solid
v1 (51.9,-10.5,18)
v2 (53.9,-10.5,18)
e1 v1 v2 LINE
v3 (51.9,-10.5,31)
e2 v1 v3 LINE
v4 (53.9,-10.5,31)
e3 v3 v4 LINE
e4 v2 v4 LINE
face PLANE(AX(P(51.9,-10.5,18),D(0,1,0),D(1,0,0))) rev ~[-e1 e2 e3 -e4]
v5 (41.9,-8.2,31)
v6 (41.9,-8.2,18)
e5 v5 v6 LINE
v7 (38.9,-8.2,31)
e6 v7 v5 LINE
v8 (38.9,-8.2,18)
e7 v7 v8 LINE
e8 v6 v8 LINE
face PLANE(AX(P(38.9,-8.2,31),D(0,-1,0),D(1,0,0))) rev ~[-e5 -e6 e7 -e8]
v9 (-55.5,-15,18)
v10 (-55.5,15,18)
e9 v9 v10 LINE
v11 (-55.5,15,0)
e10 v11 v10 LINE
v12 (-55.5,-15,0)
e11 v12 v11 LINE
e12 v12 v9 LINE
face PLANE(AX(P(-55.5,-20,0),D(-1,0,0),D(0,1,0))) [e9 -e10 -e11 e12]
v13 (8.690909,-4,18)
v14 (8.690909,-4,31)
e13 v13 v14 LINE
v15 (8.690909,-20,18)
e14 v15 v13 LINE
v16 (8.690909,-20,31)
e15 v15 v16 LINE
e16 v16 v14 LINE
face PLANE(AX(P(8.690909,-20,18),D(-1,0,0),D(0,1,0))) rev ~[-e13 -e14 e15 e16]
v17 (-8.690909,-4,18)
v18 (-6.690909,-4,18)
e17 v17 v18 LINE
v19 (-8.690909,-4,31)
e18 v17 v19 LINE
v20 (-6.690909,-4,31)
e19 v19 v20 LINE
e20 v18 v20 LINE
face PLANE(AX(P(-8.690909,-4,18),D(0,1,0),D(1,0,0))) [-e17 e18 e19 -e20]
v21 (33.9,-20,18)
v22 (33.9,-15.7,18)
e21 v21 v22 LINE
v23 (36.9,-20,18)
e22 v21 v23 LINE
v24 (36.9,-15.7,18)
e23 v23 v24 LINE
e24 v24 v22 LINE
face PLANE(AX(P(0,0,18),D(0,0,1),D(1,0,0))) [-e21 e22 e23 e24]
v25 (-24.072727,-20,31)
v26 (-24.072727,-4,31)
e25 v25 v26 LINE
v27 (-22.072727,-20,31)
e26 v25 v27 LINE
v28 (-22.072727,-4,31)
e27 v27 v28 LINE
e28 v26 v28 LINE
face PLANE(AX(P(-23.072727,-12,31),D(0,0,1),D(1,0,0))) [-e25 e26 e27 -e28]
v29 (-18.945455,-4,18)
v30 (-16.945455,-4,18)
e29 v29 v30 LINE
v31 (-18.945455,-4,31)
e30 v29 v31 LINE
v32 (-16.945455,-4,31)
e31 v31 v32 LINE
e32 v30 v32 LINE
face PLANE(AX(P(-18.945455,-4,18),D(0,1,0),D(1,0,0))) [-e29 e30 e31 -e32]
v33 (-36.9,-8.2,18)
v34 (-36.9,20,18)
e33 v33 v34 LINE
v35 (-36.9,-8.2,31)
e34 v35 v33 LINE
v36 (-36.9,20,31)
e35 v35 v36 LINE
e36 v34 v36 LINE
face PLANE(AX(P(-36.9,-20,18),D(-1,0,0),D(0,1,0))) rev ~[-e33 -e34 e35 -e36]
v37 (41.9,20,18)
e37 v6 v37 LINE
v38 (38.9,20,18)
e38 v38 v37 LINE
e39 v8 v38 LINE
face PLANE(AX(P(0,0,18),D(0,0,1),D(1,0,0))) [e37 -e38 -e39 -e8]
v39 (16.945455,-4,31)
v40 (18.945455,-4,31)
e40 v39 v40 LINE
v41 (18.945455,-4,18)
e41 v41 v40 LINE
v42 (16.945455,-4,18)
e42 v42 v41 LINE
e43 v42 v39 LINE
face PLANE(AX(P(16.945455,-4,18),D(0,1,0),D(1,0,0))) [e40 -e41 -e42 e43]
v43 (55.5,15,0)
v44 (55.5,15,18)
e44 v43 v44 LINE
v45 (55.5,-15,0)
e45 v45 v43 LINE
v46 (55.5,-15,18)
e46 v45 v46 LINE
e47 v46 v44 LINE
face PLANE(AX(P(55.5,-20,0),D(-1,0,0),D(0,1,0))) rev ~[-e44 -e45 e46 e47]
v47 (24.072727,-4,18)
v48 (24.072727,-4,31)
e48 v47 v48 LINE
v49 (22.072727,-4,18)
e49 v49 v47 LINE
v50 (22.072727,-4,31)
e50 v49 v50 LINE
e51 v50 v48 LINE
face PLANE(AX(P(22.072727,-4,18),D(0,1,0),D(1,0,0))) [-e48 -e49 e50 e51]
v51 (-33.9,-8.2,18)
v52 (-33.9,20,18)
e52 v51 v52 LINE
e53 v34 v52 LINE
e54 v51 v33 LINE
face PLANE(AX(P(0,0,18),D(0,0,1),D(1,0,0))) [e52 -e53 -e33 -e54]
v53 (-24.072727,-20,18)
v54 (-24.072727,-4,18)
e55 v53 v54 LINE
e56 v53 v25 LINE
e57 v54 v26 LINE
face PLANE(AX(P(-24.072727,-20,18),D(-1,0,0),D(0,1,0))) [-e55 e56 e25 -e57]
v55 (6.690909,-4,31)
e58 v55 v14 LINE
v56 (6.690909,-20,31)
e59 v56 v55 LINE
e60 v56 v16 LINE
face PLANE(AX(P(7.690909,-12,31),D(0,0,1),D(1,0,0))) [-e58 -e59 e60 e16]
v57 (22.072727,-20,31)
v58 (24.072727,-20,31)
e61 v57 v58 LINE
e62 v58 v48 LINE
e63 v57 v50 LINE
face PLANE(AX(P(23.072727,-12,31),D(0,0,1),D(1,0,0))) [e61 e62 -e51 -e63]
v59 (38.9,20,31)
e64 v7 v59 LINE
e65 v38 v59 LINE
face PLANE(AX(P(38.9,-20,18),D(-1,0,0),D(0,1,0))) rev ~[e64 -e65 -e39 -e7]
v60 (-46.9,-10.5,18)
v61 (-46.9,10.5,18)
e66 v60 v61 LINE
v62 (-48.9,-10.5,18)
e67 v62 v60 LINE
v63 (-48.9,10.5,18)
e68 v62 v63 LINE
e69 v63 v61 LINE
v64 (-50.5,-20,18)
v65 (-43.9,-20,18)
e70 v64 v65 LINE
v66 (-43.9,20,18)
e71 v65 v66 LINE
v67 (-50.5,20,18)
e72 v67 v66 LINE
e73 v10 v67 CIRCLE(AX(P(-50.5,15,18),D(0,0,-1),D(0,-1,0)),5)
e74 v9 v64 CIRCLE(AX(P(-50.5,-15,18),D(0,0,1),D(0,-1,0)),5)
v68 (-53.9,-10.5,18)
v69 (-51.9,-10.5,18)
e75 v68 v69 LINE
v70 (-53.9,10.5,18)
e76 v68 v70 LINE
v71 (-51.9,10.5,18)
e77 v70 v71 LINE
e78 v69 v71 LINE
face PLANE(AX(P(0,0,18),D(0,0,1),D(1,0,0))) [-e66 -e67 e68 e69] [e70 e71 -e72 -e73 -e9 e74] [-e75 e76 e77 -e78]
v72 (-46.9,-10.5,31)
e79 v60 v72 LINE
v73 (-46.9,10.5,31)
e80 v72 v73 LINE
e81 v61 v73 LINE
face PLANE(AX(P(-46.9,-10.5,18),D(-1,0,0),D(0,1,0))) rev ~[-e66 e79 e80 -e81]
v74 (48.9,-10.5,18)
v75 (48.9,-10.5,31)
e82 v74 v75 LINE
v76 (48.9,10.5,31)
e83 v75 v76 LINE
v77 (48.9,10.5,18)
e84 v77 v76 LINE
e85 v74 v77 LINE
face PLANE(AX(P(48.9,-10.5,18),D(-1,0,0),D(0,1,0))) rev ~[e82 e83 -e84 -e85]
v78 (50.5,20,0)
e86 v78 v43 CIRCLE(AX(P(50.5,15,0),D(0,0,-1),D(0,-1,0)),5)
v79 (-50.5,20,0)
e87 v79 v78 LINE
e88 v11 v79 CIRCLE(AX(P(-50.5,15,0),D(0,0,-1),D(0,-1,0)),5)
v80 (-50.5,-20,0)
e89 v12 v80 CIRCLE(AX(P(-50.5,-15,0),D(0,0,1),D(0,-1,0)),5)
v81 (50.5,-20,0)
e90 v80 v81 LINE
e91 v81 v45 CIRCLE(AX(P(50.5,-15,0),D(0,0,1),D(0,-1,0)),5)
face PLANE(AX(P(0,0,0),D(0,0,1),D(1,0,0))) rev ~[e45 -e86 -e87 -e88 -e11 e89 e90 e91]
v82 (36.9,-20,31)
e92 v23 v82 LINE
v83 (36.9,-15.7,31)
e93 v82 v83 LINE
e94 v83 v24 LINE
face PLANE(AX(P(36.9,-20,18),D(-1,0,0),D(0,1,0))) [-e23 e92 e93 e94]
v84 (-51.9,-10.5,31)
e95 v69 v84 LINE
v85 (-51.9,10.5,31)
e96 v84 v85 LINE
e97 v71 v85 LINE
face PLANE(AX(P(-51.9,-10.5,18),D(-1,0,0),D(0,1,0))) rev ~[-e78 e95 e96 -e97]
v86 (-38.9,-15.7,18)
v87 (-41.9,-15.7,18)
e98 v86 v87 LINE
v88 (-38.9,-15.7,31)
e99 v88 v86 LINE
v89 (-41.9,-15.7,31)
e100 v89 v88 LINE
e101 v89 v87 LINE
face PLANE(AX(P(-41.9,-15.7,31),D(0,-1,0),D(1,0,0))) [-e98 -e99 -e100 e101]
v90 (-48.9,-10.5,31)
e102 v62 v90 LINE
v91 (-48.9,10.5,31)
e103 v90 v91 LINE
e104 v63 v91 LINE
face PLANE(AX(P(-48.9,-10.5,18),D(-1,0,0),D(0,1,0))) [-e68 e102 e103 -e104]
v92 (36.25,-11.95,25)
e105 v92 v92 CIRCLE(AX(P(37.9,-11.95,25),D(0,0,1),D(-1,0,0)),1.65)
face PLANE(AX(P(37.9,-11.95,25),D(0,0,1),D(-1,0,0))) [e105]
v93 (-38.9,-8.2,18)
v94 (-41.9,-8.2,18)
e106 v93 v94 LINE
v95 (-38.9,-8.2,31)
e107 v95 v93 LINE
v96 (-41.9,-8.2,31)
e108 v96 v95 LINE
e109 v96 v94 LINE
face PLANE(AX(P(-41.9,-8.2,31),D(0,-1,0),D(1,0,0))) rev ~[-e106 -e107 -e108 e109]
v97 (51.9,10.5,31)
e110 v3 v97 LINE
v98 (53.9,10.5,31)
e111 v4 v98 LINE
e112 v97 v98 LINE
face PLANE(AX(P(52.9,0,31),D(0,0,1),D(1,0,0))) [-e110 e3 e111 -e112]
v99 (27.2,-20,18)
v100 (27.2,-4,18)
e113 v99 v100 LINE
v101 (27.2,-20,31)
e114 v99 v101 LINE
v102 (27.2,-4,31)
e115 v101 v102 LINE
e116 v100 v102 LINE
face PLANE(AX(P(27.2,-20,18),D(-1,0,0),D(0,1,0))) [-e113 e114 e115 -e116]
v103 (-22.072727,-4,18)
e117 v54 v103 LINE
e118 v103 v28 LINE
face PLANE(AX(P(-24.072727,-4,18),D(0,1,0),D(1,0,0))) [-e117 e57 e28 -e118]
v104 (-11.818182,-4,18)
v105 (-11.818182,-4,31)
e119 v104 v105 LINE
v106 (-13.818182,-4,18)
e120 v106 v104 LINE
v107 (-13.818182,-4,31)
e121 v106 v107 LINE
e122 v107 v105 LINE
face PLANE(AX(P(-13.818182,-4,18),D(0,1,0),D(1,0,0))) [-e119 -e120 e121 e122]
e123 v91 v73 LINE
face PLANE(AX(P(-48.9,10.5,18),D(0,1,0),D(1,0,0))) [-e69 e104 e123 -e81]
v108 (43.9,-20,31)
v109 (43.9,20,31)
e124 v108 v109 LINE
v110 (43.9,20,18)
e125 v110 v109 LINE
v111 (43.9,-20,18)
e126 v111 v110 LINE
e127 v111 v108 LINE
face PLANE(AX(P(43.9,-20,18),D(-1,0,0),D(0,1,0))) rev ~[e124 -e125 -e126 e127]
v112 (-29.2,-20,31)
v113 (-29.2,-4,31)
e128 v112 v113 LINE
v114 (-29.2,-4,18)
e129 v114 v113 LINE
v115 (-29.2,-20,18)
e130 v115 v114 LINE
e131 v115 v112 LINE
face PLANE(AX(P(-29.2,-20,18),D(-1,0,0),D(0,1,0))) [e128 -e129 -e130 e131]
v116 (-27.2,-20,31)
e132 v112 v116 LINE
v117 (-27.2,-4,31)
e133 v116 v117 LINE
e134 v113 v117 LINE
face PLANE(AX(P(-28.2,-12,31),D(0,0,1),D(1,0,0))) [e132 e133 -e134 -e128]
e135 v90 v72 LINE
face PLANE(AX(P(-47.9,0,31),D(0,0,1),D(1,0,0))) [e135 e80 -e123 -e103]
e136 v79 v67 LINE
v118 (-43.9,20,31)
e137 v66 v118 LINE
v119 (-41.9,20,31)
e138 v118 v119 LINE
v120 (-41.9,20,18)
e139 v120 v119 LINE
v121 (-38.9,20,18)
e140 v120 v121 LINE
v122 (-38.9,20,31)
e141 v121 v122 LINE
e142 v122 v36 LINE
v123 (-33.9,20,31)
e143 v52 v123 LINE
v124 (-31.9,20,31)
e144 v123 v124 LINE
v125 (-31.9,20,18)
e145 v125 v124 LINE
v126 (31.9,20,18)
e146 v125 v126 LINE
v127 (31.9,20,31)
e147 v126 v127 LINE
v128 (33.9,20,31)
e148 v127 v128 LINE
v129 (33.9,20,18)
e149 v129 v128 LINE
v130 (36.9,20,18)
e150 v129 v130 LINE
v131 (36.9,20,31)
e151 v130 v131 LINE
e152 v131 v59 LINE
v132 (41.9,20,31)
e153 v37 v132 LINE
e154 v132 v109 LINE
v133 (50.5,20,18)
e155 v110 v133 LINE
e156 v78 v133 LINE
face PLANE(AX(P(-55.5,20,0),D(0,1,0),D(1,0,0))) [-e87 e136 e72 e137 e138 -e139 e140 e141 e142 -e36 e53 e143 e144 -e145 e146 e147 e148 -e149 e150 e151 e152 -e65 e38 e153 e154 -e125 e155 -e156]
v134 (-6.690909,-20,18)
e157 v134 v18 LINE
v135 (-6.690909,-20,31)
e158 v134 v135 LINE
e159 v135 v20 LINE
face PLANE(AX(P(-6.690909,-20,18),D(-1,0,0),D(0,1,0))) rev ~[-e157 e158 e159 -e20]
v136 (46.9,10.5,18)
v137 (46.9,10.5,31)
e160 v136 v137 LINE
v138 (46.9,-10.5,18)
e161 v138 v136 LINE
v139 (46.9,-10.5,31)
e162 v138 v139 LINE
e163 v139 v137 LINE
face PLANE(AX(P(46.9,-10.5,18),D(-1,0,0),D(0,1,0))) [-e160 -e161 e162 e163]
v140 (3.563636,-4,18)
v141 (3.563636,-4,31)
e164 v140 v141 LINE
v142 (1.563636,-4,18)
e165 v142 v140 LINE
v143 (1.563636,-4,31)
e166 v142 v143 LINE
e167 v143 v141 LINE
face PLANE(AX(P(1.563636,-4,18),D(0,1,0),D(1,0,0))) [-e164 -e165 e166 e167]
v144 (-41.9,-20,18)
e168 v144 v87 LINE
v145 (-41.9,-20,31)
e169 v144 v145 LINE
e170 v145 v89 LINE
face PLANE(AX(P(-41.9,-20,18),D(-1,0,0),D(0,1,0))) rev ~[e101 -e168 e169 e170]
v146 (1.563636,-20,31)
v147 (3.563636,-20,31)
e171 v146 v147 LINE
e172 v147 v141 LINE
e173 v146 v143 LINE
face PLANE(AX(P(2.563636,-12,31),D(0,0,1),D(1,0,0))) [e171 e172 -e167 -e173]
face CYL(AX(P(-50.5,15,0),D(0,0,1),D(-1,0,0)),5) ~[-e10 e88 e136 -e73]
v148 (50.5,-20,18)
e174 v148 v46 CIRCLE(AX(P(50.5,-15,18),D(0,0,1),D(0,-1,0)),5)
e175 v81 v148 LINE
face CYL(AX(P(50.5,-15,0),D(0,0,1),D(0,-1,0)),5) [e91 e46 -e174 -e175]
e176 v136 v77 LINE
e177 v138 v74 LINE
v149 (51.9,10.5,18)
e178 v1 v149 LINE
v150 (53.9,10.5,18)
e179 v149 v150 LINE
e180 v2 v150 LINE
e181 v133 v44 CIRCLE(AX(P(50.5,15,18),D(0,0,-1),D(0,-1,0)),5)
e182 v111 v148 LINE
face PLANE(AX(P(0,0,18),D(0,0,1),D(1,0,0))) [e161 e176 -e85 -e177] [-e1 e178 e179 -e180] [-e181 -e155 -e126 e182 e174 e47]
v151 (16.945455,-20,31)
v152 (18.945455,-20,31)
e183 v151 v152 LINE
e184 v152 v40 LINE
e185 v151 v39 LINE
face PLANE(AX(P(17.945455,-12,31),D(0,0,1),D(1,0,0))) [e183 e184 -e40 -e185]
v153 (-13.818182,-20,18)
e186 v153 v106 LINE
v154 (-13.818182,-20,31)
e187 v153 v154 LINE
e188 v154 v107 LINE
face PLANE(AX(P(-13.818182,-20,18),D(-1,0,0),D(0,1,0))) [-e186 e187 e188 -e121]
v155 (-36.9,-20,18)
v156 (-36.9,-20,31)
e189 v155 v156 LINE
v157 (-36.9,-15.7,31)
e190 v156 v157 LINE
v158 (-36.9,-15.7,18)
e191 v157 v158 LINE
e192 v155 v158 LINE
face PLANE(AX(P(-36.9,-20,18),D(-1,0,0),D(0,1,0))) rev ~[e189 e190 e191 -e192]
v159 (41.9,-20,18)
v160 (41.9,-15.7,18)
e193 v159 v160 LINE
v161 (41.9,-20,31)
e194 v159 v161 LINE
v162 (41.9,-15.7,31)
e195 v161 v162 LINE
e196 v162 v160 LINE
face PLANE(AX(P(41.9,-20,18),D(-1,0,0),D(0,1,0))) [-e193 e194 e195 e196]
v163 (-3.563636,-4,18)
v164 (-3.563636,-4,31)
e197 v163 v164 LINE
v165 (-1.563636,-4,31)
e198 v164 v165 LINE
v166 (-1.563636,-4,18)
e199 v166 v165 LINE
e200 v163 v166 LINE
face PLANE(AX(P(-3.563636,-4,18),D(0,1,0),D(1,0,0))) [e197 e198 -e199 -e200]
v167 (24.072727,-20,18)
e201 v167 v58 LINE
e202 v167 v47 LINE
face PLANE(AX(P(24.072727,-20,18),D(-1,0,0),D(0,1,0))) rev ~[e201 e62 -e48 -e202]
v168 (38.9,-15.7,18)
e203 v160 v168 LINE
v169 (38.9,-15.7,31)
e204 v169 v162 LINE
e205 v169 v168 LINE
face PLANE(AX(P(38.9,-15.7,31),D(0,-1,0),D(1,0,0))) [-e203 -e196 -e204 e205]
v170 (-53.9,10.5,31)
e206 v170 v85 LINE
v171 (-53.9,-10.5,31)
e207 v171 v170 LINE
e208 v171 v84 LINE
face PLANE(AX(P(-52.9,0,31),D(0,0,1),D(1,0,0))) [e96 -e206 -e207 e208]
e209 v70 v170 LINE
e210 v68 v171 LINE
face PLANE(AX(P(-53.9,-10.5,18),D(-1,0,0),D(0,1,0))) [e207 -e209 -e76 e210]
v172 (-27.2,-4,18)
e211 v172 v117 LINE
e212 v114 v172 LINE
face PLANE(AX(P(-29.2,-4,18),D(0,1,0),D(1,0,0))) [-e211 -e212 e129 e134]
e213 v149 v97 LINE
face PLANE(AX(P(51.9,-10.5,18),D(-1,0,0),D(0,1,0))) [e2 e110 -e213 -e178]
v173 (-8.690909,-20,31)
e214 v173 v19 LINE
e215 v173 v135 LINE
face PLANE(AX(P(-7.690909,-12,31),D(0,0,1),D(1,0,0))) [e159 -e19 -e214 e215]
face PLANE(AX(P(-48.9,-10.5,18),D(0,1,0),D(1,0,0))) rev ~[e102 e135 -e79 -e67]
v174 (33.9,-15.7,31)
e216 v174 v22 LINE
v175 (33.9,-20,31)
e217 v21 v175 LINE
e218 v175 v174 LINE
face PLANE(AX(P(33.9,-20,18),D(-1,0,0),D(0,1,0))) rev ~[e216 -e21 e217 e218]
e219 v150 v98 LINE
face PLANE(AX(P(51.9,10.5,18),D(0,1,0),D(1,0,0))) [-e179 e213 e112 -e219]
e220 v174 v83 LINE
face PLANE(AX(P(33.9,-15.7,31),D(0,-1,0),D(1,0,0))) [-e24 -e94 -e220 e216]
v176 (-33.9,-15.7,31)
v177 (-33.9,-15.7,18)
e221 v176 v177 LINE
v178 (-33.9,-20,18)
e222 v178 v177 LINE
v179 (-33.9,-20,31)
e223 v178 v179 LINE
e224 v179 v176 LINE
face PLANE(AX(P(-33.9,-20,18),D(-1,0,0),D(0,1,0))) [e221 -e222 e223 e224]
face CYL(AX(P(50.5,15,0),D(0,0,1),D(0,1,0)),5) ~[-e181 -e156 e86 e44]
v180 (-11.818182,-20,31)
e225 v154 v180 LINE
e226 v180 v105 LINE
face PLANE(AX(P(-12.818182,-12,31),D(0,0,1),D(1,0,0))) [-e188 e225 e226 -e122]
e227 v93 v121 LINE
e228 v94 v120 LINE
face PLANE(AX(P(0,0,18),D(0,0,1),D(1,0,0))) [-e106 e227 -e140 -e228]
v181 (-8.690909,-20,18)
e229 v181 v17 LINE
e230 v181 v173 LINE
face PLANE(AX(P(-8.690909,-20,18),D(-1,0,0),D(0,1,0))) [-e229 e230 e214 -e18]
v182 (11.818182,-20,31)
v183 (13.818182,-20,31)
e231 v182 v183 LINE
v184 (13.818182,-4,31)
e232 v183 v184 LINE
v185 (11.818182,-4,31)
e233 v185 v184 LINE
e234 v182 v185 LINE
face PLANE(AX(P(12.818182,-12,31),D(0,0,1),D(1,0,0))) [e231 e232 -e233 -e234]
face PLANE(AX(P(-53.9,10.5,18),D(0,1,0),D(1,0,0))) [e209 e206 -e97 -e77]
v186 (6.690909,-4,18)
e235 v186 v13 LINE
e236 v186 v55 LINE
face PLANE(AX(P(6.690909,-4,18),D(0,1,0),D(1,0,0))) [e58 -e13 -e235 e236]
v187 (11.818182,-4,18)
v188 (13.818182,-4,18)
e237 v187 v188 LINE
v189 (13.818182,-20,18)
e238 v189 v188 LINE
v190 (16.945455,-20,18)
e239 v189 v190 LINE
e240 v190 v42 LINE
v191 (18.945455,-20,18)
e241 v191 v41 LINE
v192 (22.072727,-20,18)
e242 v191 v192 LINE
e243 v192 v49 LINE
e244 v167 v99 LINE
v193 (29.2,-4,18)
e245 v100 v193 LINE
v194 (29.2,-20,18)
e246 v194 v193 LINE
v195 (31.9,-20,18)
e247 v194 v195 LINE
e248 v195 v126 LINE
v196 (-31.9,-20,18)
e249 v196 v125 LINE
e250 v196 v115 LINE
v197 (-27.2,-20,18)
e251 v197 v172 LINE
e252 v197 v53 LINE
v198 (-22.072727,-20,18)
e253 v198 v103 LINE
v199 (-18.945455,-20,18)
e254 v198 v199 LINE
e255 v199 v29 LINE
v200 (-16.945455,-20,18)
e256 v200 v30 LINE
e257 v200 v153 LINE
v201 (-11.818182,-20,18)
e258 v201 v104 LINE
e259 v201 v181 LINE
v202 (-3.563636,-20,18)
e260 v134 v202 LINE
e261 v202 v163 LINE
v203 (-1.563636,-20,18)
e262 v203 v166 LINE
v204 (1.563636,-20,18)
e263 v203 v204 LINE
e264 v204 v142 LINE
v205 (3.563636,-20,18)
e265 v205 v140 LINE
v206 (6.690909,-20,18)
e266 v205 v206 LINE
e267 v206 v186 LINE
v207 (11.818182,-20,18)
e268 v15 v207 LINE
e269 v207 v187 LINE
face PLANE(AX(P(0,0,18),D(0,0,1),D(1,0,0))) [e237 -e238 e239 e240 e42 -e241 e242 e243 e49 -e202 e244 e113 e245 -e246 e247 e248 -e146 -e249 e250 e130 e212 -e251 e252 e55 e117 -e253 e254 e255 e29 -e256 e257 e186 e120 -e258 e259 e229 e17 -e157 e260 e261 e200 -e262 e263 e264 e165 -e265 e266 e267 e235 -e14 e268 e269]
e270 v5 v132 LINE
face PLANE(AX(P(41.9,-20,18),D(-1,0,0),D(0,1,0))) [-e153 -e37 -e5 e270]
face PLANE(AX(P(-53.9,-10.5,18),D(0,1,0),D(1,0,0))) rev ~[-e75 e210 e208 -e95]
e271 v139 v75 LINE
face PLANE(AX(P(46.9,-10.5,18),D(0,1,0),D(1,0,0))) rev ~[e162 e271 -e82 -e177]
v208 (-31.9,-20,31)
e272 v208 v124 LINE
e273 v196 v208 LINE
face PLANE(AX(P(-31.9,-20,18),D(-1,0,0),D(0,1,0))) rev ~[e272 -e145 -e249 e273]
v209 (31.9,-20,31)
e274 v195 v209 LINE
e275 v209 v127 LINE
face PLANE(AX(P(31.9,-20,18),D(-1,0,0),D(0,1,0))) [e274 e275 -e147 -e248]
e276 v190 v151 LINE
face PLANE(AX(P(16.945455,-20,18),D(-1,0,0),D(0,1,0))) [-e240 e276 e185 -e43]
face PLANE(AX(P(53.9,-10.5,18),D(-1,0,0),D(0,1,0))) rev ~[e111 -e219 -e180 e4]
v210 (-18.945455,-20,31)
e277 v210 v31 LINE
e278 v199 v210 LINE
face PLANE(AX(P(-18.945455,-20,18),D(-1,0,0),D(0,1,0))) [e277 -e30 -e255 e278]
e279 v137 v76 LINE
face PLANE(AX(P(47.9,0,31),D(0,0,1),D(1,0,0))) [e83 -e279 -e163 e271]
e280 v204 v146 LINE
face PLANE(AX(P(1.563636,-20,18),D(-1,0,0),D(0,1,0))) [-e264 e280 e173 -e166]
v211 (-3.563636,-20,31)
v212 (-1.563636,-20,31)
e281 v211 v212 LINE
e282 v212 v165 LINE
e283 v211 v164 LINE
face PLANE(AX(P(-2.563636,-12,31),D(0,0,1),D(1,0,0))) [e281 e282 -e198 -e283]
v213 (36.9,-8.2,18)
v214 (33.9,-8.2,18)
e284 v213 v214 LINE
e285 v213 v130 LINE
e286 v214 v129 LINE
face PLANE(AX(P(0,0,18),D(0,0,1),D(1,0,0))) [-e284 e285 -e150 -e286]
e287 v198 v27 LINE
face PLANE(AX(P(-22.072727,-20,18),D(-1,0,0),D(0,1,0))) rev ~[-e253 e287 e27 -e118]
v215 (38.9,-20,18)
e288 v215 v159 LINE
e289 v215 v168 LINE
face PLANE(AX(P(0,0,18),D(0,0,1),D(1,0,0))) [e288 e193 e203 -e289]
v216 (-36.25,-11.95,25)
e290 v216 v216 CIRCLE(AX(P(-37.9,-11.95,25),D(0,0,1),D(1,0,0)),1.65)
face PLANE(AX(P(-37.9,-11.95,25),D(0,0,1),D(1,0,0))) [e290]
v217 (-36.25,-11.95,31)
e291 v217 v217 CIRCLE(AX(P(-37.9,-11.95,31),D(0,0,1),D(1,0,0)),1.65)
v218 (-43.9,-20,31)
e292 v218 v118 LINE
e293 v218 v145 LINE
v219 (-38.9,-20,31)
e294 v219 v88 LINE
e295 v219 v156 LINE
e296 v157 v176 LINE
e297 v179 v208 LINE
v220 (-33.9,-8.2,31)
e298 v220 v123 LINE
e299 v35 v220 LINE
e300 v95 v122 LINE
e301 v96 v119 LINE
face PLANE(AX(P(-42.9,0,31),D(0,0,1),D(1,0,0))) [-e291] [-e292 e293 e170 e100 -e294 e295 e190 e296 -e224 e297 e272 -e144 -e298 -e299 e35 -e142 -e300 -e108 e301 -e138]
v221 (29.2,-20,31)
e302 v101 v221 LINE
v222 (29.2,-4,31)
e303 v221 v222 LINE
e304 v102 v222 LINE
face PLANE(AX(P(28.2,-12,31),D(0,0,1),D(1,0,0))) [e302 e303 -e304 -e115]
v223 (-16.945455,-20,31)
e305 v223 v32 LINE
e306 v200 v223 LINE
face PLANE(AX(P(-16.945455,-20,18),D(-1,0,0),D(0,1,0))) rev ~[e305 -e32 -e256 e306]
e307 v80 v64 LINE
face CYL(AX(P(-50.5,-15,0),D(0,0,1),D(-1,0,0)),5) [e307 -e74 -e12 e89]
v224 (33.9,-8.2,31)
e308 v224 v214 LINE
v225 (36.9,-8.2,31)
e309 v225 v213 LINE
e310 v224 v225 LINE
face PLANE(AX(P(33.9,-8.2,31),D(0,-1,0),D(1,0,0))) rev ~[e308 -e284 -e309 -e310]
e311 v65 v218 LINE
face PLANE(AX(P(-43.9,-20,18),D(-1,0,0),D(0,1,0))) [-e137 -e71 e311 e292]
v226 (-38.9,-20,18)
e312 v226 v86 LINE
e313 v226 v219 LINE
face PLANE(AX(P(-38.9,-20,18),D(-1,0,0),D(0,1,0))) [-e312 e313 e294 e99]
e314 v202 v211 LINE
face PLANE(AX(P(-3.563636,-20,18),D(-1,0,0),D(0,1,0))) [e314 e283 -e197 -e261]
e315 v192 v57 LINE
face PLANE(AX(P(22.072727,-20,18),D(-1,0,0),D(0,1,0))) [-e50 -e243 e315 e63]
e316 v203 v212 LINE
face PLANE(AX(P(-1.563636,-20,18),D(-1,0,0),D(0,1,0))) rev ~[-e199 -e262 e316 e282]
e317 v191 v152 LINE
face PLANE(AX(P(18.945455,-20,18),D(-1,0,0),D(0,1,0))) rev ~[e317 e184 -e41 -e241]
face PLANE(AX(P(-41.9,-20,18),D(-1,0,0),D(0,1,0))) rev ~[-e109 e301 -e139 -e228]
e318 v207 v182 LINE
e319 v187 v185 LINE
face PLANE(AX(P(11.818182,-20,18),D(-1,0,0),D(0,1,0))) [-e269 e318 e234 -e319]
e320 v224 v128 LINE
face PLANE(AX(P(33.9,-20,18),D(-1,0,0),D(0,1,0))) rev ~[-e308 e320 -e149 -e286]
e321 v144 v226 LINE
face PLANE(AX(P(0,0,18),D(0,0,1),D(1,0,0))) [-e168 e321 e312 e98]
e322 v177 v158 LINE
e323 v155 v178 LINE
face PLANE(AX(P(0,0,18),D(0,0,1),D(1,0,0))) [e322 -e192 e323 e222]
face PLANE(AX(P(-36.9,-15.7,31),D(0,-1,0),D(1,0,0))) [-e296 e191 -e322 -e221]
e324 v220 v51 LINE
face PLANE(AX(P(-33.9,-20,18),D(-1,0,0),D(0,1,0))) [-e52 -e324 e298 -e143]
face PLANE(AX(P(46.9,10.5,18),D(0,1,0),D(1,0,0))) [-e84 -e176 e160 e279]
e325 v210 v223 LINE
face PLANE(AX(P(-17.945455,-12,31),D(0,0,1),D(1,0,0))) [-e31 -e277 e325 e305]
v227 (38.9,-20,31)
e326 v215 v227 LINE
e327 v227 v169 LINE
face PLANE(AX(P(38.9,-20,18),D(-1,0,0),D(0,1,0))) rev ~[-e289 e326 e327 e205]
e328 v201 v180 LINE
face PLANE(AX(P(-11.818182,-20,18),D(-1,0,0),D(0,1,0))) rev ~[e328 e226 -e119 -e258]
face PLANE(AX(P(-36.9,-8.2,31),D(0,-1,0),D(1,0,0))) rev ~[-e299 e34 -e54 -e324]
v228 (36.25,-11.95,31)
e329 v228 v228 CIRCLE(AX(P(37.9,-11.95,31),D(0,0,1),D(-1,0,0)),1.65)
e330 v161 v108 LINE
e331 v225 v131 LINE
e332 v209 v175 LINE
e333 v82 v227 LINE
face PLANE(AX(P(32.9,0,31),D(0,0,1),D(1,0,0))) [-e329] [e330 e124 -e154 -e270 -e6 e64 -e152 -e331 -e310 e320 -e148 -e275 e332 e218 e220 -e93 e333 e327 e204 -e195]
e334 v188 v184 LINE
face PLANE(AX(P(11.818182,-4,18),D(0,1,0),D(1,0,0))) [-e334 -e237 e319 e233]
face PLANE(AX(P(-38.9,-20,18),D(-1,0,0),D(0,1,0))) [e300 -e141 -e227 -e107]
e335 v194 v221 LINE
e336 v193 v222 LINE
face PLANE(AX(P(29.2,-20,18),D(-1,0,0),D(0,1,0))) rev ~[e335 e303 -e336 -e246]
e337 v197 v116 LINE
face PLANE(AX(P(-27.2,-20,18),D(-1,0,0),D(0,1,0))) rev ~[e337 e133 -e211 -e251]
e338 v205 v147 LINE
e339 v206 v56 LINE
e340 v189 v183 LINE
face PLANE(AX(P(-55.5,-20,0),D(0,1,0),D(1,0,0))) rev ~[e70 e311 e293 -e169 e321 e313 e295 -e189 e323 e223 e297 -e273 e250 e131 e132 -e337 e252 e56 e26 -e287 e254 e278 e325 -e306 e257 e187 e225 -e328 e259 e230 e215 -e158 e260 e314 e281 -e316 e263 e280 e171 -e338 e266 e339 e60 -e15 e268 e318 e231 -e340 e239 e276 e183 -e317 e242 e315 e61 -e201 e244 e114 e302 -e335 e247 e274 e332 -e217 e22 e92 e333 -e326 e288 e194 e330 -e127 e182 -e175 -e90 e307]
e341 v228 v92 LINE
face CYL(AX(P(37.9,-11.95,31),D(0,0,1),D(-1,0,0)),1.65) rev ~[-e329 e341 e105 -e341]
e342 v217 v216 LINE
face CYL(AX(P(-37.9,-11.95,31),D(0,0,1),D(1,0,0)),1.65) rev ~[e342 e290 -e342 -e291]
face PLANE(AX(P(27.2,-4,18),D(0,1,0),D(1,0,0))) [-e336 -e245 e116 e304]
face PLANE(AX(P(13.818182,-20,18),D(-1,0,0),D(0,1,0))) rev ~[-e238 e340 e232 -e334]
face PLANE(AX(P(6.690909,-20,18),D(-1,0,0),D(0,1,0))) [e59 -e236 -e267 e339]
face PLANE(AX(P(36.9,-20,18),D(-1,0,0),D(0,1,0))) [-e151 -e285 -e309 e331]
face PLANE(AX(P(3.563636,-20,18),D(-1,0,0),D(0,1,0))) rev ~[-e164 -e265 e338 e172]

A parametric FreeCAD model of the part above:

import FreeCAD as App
import Part
import Sketcher
from FreeCAD import Vector
Q = App.Units.Quantity


def edges_at(feature, points):
    """Names of the edges that pass closest to the given points."""
    edges = feature.Shape.Edges
    near = lambda p: min(range(len(edges)), key=lambda i: edges[i].distToShape(Part.Vertex(*p))[0])
    return sorted({f"Edge{near(p) + 1}" for p in points})

doc = App.newDocument("Part")
body = doc.addObject("PartDesign::Body", "Body")

# Sketch on XY plane
sketch1 = doc.addObject("Sketcher::SketchObject", "Sketch")
body.addObject(sketch1)
sketch1.AttachmentSupport = (doc.XY_Plane, [""])
sketch1.MapMode = "FlatFace"
sketch1.addGeometry([
    Part.LineSegment(Vector(-55.5, 20, 0), Vector(-55.5, -20, 0)),
    Part.LineSegment(Vector(-55.5, -20, 0), Vector(55.5, -20, 0)),
    Part.LineSegment(Vector(55.5, -20, 0), Vector(55.5, 20, 0)),
    Part.LineSegment(Vector(55.5, 20, 0), Vector(-55.5, 20, 0)),
], False)
sketch1.addConstraint([
    Sketcher.Constraint("Coincident", 0, 2, 1, 1),
    Sketcher.Constraint("Coincident", 1, 2, 2, 1),
    Sketcher.Constraint("Coincident", 2, 2, 3, 1),
    Sketcher.Constraint("Coincident", 3, 2, 0, 1),
    Sketcher.Constraint("Vertical", 0),
    Sketcher.Constraint("Horizontal", 1),
    Sketcher.Constraint("Vertical", 2),
    Sketcher.Constraint("Horizontal", 3),
    Sketcher.Constraint("Symmetric", 0, 2, 2, 2, -1, 1),
    Sketcher.Constraint("DistanceX", 1, 1, 1, 2, Q("111 mm")),
    Sketcher.Constraint("DistanceY", 0, 2, 0, 1, Q("40 mm")),
])
pad1 = doc.addObject("PartDesign::Pad", "Pad")
body.addObject(pad1)
pad1.Profile = sketch1
pad1.Length = 18

# Sketch on XY plane
sketch2 = doc.addObject("Sketcher::SketchObject", "Sketch001")
body.addObject(sketch2)
sketch2.AttachmentSupport = (doc.XY_Plane, [""])
sketch2.MapMode = "FlatFace"
sketch2.AttachmentOffset = App.Placement(Vector(0, 0, 18), App.Rotation())
sketch2.addGeometry([
    Part.LineSegment(Vector(-29.2, -4, 0), Vector(-29.2, -20, 0)),  # 0
    Part.LineSegment(Vector(-29.2, -20, 0), Vector(-27.2, -20, 0)),  # 1
    Part.LineSegment(Vector(-27.2, -20, 0), Vector(-27.2, -4, 0)),  # 2
    Part.LineSegment(Vector(-27.2, -4, 0), Vector(-29.2, -4, 0)),  # 3
    Part.LineSegment(Vector(-24.072727, -4, 0), Vector(-24.072727, -20, 0)),  # 4
    Part.LineSegment(Vector(-24.072727, -20, 0), Vector(-22.072727, -20, 0)),  # 5
    Part.LineSegment(Vector(-22.072727, -20, 0), Vector(-22.072727, -4, 0)),  # 6
    Part.LineSegment(Vector(-22.072727, -4, 0), Vector(-24.072727, -4, 0)),  # 7
    Part.LineSegment(Vector(-18.945455, -4, 0), Vector(-18.945455, -20, 0)),  # 8
    Part.LineSegment(Vector(-18.945455, -20, 0), Vector(-16.945455, -20, 0)),  # 9
    Part.LineSegment(Vector(-16.945455, -20, 0), Vector(-16.945455, -4, 0)),  # 10
    Part.LineSegment(Vector(-16.945455, -4, 0), Vector(-18.945455, -4, 0)),  # 11
    Part.LineSegment(Vector(-13.818182, -4, 0), Vector(-13.818182, -20, 0)),  # 12
    Part.LineSegment(Vector(-13.818182, -20, 0), Vector(-11.818182, -20, 0)),  # 13
    Part.LineSegment(Vector(-11.818182, -20, 0), Vector(-11.818182, -4, 0)),  # 14
    Part.LineSegment(Vector(-11.818182, -4, 0), Vector(-13.818182, -4, 0)),  # 15
    Part.LineSegment(Vector(-8.690909, -4, 0), Vector(-8.690909, -20, 0)),  # 16
    Part.LineSegment(Vector(-8.690909, -20, 0), Vector(-6.690909, -20, 0)),  # 17
    Part.LineSegment(Vector(-6.690909, -20, 0), Vector(-6.690909, -4, 0)),  # 18
    Part.LineSegment(Vector(-6.690909, -4, 0), Vector(-8.690909, -4, 0)),  # 19
    Part.LineSegment(Vector(-3.563636, -4, 0), Vector(-3.563636, -20, 0)),  # 20
    Part.LineSegment(Vector(-3.563636, -20, 0), Vector(-1.563636, -20, 0)),  # 21
    Part.LineSegment(Vector(-1.563636, -20, 0), Vector(-1.563636, -4, 0)),  # 22
    Part.LineSegment(Vector(-1.563636, -4, 0), Vector(-3.563636, -4, 0)),  # 23
    Part.LineSegment(Vector(1.563636, -4, 0), Vector(1.563636, -20, 0)),  # 24
    Part.LineSegment(Vector(1.563636, -20, 0), Vector(3.563636, -20, 0)),  # 25
    Part.LineSegment(Vector(3.563636, -20, 0), Vector(3.563636, -4, 0)),  # 26
    Part.LineSegment(Vector(3.563636, -4, 0), Vector(1.563636, -4, 0)),  # 27
    Part.LineSegment(Vector(6.690909, -4, 0), Vector(6.690909, -20, 0)),  # 28
    Part.LineSegment(Vector(6.690909, -20, 0), Vector(8.690909, -20, 0)),  # 29
    Part.LineSegment(Vector(8.690909, -20, 0), Vector(8.690909, -4, 0)),  # 30
    Part.LineSegment(Vector(8.690909, -4, 0), Vector(6.690909, -4, 0)),  # 31
    Part.LineSegment(Vector(11.818182, -4, 0), Vector(11.818182, -20, 0)),  # 32
    Part.LineSegment(Vector(11.818182, -20, 0), Vector(13.818182, -20, 0)),  # 33
    Part.LineSegment(Vector(13.818182, -20, 0), Vector(13.818182, -4, 0)),  # 34
    Part.LineSegment(Vector(13.818182, -4, 0), Vector(11.818182, -4, 0)),  # 35
    Part.LineSegment(Vector(16.945455, -4, 0), Vector(16.945455, -20, 0)),  # 36
    Part.LineSegment(Vector(16.945455, -20, 0), Vector(18.945455, -20, 0)),  # 37
    Part.LineSegment(Vector(18.945455, -20, 0), Vector(18.945455, -4, 0)),  # 38
    Part.LineSegment(Vector(18.945455, -4, 0), Vector(16.945455, -4, 0)),  # 39
    Part.LineSegment(Vector(22.072727, -4, 0), Vector(22.072727, -20, 0)),  # 40
    Part.LineSegment(Vector(22.072727, -20, 0), Vector(24.072727, -20, 0)),  # 41
    Part.LineSegment(Vector(24.072727, -20, 0), Vector(24.072727, -4, 0)),  # 42
    Part.LineSegment(Vector(24.072727, -4, 0), Vector(22.072727, -4, 0)),  # 43
    Part.LineSegment(Vector(27.2, -4, 0), Vector(27.2, -20, 0)),  # 44
    Part.LineSegment(Vector(27.2, -20, 0), Vector(29.2, -20, 0)),  # 45
    Part.LineSegment(Vector(29.2, -20, 0), Vector(29.2, -4, 0)),  # 46
    Part.LineSegment(Vector(29.2, -4, 0), Vector(27.2, -4, 0)),  # 47
    Part.LineSegment(Vector(-48.9, 10.5, 0), Vector(-48.9, -10.5, 0)),  # 48
    Part.LineSegment(Vector(-48.9, -10.5, 0), Vector(-46.9, -10.5, 0)),  # 49
    Part.LineSegment(Vector(-46.9, -10.5, 0), Vector(-46.9, 10.5, 0)),  # 50
    Part.LineSegment(Vector(-46.9, 10.5, 0), Vector(-48.9, 10.5, 0)),  # 51
    Part.LineSegment(Vector(-53.9, 10.5, 0), Vector(-53.9, -10.5, 0)),  # 52
    Part.LineSegment(Vector(-53.9, -10.5, 0), Vector(-51.9, -10.5, 0)),  # 53
    Part.LineSegment(Vector(-51.9, -10.5, 0), Vector(-51.9, 10.5, 0)),  # 54
    Part.LineSegment(Vector(-51.9, 10.5, 0), Vector(-53.9, 10.5, 0)),  # 55
    Part.LineSegment(Vector(-43.9, 20, 0), Vector(-43.9, -20, 0)),  # 56
    Part.LineSegment(Vector(-43.9, -20, 0), Vector(-41.9, -20, 0)),  # 57
    Part.LineSegment(Vector(-41.9, -20, 0), Vector(-41.9, 20, 0)),  # 58
    Part.LineSegment(Vector(-41.9, 20, 0), Vector(-43.9, 20, 0)),  # 59
    Part.LineSegment(Vector(-38.9, 20, 0), Vector(-38.9, -20, 0)),  # 60
    Part.LineSegment(Vector(-38.9, -20, 0), Vector(-36.9, -20, 0)),  # 61
    Part.LineSegment(Vector(-36.9, -20, 0), Vector(-36.9, 20, 0)),  # 62
    Part.LineSegment(Vector(-36.9, 20, 0), Vector(-38.9, 20, 0)),  # 63
    Part.LineSegment(Vector(-33.9, 20, 0), Vector(-33.9, -20, 0)),  # 64
    Part.LineSegment(Vector(-33.9, -20, 0), Vector(-31.9, -20, 0)),  # 65
    Part.LineSegment(Vector(-31.9, -20, 0), Vector(-31.9, 20, 0)),  # 66
    Part.LineSegment(Vector(-31.9, 20, 0), Vector(-33.9, 20, 0)),  # 67
    Part.LineSegment(Vector(31.9, 20, 0), Vector(31.9, -20, 0)),  # 68
    Part.LineSegment(Vector(31.9, -20, 0), Vector(33.9, -20, 0)),  # 69
    Part.LineSegment(Vector(33.9, -20, 0), Vector(33.9, 20, 0)),  # 70
    Part.LineSegment(Vector(33.9, 20, 0), Vector(31.9, 20, 0)),  # 71
    Part.LineSegment(Vector(36.9, 20, 0), Vector(36.9, -20, 0)),  # 72
    Part.LineSegment(Vector(36.9, -20, 0), Vector(38.9, -20, 0)),  # 73
    Part.LineSegment(Vector(38.9, -20, 0), Vector(38.9, 20, 0)),  # 74
    Part.LineSegment(Vector(38.9, 20, 0), Vector(36.9, 20, 0)),  # 75
    Part.LineSegment(Vector(41.9, 20, 0), Vector(41.9, -20, 0)),  # 76
    Part.LineSegment(Vector(41.9, -20, 0), Vector(43.9, -20, 0)),  # 77
    Part.LineSegment(Vector(43.9, -20, 0), Vector(43.9, 20, 0)),  # 78
    Part.LineSegment(Vector(43.9, 20, 0), Vector(41.9, 20, 0)),  # 79
    Part.LineSegment(Vector(46.9, 10.5, 0), Vector(46.9, -10.5, 0)),  # 80
    Part.LineSegment(Vector(46.9, -10.5, 0), Vector(48.9, -10.5, 0)),  # 81
    Part.LineSegment(Vector(48.9, -10.5, 0), Vector(48.9, 10.5, 0)),  # 82
    Part.LineSegment(Vector(48.9, 10.5, 0), Vector(46.9, 10.5, 0)),  # 83
    Part.LineSegment(Vector(51.9, 10.5, 0), Vector(51.9, -10.5, 0)),  # 84
    Part.LineSegment(Vector(51.9, -10.5, 0), Vector(53.9, -10.5, 0)),  # 85
    Part.LineSegment(Vector(53.9, -10.5, 0), Vector(53.9, 10.5, 0)),  # 86
    Part.LineSegment(Vector(53.9, 10.5, 0), Vector(51.9, 10.5, 0)),  # 87
], False)
sketch2.addConstraint([
    Sketcher.Constraint("Coincident", 0, 2, 1, 1),
    Sketcher.Constraint("Coincident", 1, 2, 2, 1),
    Sketcher.Constraint("Coincident", 2, 2, 3, 1),
    Sketcher.Constraint("Coincident", 3, 2, 0, 1),
    Sketcher.Constraint("Coincident", 4, 2, 5, 1),
    Sketcher.Constraint("Coincident", 5, 2, 6, 1),
    Sketcher.Constraint("Coincident", 6, 2, 7, 1),
    Sketcher.Constraint("Coincident", 7, 2, 4, 1),
    Sketcher.Constraint("Coincident", 8, 2, 9, 1),
    Sketcher.Constraint("Coincident", 9, 2, 10, 1),
    Sketcher.Constraint("Coincident", 10, 2, 11, 1),
    Sketcher.Constraint("Coincident", 11, 2, 8, 1),
    Sketcher.Constraint("Coincident", 12, 2, 13, 1),
    Sketcher.Constraint("Coincident", 13, 2, 14, 1),
    Sketcher.Constraint("Coincident", 14, 2, 15, 1),
    Sketcher.Constraint("Coincident", 15, 2, 12, 1),
    Sketcher.Constraint("Coincident", 16, 2, 17, 1),
    Sketcher.Constraint("Coincident", 17, 2, 18, 1),
    Sketcher.Constraint("Coincident", 18, 2, 19, 1),
    Sketcher.Constraint("Coincident", 19, 2, 16, 1),
    Sketcher.Constraint("Coincident", 20, 2, 21, 1),
    Sketcher.Constraint("Coincident", 21, 2, 22, 1),
    Sketcher.Constraint("Coincident", 22, 2, 23, 1),
    Sketcher.Constraint("Coincident", 23, 2, 20, 1),
    Sketcher.Constraint("Coincident", 24, 2, 25, 1),
    Sketcher.Constraint("Coincident", 25, 2, 26, 1),
    Sketcher.Constraint("Coincident", 26, 2, 27, 1),
    Sketcher.Constraint("Coincident", 27, 2, 24, 1),
    Sketcher.Constraint("Coincident", 28, 2, 29, 1),
    Sketcher.Constraint("Coincident", 29, 2, 30, 1),
    Sketcher.Constraint("Coincident", 30, 2, 31, 1),
    Sketcher.Constraint("Coincident", 31, 2, 28, 1),
    Sketcher.Constraint("Coincident", 32, 2, 33, 1),
    Sketcher.Constraint("Coincident", 33, 2, 34, 1),
    Sketcher.Constraint("Coincident", 34, 2, 35, 1),
    Sketcher.Constraint("Coincident", 35, 2, 32, 1),
    Sketcher.Constraint("Coincident", 36, 2, 37, 1),
    Sketcher.Constraint("Coincident", 37, 2, 38, 1),
    Sketcher.Constraint("Coincident", 38, 2, 39, 1),
    Sketcher.Constraint("Coincident", 39, 2, 36, 1),
    Sketcher.Constraint("Coincident", 40, 2, 41, 1),
    Sketcher.Constraint("Coincident", 41, 2, 42, 1),
    Sketcher.Constraint("Coincident", 42, 2, 43, 1),
    Sketcher.Constraint("Coincident", 43, 2, 40, 1),
    Sketcher.Constraint("Coincident", 44, 2, 45, 1),
    Sketcher.Constraint("Coincident", 45, 2, 46, 1),
    Sketcher.Constraint("Coincident", 46, 2, 47, 1),
    Sketcher.Constraint("Coincident", 47, 2, 44, 1),
    Sketcher.Constraint("Coincident", 48, 2, 49, 1),
    Sketcher.Constraint("Coincident", 49, 2, 50, 1),
    Sketcher.Constraint("Coincident", 50, 2, 51, 1),
    Sketcher.Constraint("Coincident", 51, 2, 48, 1),
    Sketcher.Constraint("Coincident", 52, 2, 53, 1),
    Sketcher.Constraint("Coincident", 53, 2, 54, 1),
    Sketcher.Constraint("Coincident", 54, 2, 55, 1),
    Sketcher.Constraint("Coincident", 55, 2, 52, 1),
    Sketcher.Constraint("Coincident", 56, 2, 57, 1),
    Sketcher.Constraint("Coincident", 57, 2, 58, 1),
    Sketcher.Constraint("Coincident", 58, 2, 59, 1),
    Sketcher.Constraint("Coincident", 59, 2, 56, 1),
    Sketcher.Constraint("Coincident", 60, 2, 61, 1),
    Sketcher.Constraint("Coincident", 61, 2, 62, 1),
    Sketcher.Constraint("Coincident", 62, 2, 63, 1),
    Sketcher.Constraint("Coincident", 63, 2, 60, 1),
    Sketcher.Constraint("Coincident", 64, 2, 65, 1),
    Sketcher.Constraint("Coincident", 65, 2, 66, 1),
    Sketcher.Constraint("Coincident", 66, 2, 67, 1),
    Sketcher.Constraint("Coincident", 67, 2, 64, 1),
    Sketcher.Constraint("Coincident", 68, 2, 69, 1),
    Sketcher.Constraint("Coincident", 69, 2, 70, 1),
    Sketcher.Constraint("Coincident", 70, 2, 71, 1),
    Sketcher.Constraint("Coincident", 71, 2, 68, 1),
    Sketcher.Constraint("Coincident", 72, 2, 73, 1),
    Sketcher.Constraint("Coincident", 73, 2, 74, 1),
    Sketcher.Constraint("Coincident", 74, 2, 75, 1),
    Sketcher.Constraint("Coincident", 75, 2, 72, 1),
    Sketcher.Constraint("Coincident", 76, 2, 77, 1),
    Sketcher.Constraint("Coincident", 77, 2, 78, 1),
    Sketcher.Constraint("Coincident", 78, 2, 79, 1),
    Sketcher.Constraint("Coincident", 79, 2, 76, 1),
    Sketcher.Constraint("Coincident", 80, 2, 81, 1),
    Sketcher.Constraint("Coincident", 81, 2, 82, 1),
    Sketcher.Constraint("Coincident", 82, 2, 83, 1),
    Sketcher.Constraint("Coincident", 83, 2, 80, 1),
    Sketcher.Constraint("Coincident", 84, 2, 85, 1),
    Sketcher.Constraint("Coincident", 85, 2, 86, 1),
    Sketcher.Constraint("Coincident", 86, 2, 87, 1),
    Sketcher.Constraint("Coincident", 87, 2, 84, 1),
    Sketcher.Constraint("Vertical", 0),
    Sketcher.Constraint("Horizontal", 1),
    Sketcher.Constraint("Vertical", 2),
    Sketcher.Constraint("Horizontal", 3),
    Sketcher.Constraint("Vertical", 4),
    Sketcher.Constraint("Horizontal", 5),
    Sketcher.Constraint("Vertical", 6),
    Sketcher.Constraint("Horizontal", 7),
    Sketcher.Constraint("Vertical", 8),
    Sketcher.Constraint("Horizontal", 9),
    Sketcher.Constraint("Vertical", 10),
    Sketcher.Constraint("Horizontal", 11),
    Sketcher.Constraint("Vertical", 12),
    Sketcher.Constraint("Horizontal", 13),
    Sketcher.Constraint("Vertical", 14),
    Sketcher.Constraint("Horizontal", 15),
    Sketcher.Constraint("Vertical", 16),
    Sketcher.Constraint("Horizontal", 17),
    Sketcher.Constraint("Vertical", 18),
    Sketcher.Constraint("Horizontal", 19),
    Sketcher.Constraint("Vertical", 20),
    Sketcher.Constraint("Horizontal", 21),
    Sketcher.Constraint("Vertical", 22),
    Sketcher.Constraint("Horizontal", 23),
    Sketcher.Constraint("Vertical", 24),
    Sketcher.Constraint("Horizontal", 25),
    Sketcher.Constraint("Vertical", 26),
    Sketcher.Constraint("Horizontal", 27),
    Sketcher.Constraint("Vertical", 28),
    Sketcher.Constraint("Horizontal", 29),
    Sketcher.Constraint("Vertical", 30),
    Sketcher.Constraint("Horizontal", 31),
    Sketcher.Constraint("Vertical", 32),
    Sketcher.Constraint("Horizontal", 33),
    Sketcher.Constraint("Vertical", 34),
    Sketcher.Constraint("Horizontal", 35),
    Sketcher.Constraint("Vertical", 36),
    Sketcher.Constraint("Horizontal", 37),
    Sketcher.Constraint("Vertical", 38),
    Sketcher.Constraint("Horizontal", 39),
    Sketcher.Constraint("Vertical", 40),
    Sketcher.Constraint("Horizontal", 41),
    Sketcher.Constraint("Vertical", 42),
    Sketcher.Constraint("Horizontal", 43),
    Sketcher.Constraint("Vertical", 44),
    Sketcher.Constraint("Horizontal", 45),
    Sketcher.Constraint("Vertical", 46),
    Sketcher.Constraint("Horizontal", 47),
    Sketcher.Constraint("Vertical", 48),
    Sketcher.Constraint("Horizontal", 49),
    Sketcher.Constraint("Vertical", 50),
    Sketcher.Constraint("Horizontal", 51),
    Sketcher.Constraint("Vertical", 52),
    Sketcher.Constraint("Horizontal", 53),
    Sketcher.Constraint("Vertical", 54),
    Sketcher.Constraint("Horizontal", 55),
    Sketcher.Constraint("Vertical", 56),
    Sketcher.Constraint("Horizontal", 57),
    Sketcher.Constraint("Vertical", 58),
    Sketcher.Constraint("Horizontal", 59),
    Sketcher.Constraint("Vertical", 60),
    Sketcher.Constraint("Horizontal", 61),
    Sketcher.Constraint("Vertical", 62),
    Sketcher.Constraint("Horizontal", 63),
    Sketcher.Constraint("Vertical", 64),
    Sketcher.Constraint("Horizontal", 65),
    Sketcher.Constraint("Vertical", 66),
    Sketcher.Constraint("Horizontal", 67),
    Sketcher.Constraint("Vertical", 68),
    Sketcher.Constraint("Horizontal", 69),
    Sketcher.Constraint("Vertical", 70),
    Sketcher.Constraint("Horizontal", 71),
    Sketcher.Constraint("Vertical", 72),
    Sketcher.Constraint("Horizontal", 73),
    Sketcher.Constraint("Vertical", 74),
    Sketcher.Constraint("Horizontal", 75),
    Sketcher.Constraint("Vertical", 76),
    Sketcher.Constraint("Horizontal", 77),
    Sketcher.Constraint("Vertical", 78),
    Sketcher.Constraint("Horizontal", 79),
    Sketcher.Constraint("Vertical", 80),
    Sketcher.Constraint("Horizontal", 81),
    Sketcher.Constraint("Vertical", 82),
    Sketcher.Constraint("Horizontal", 83),
    Sketcher.Constraint("Vertical", 84),
    Sketcher.Constraint("Horizontal", 85),
    Sketcher.Constraint("Vertical", 86),
    Sketcher.Constraint("Horizontal", 87),
    Sketcher.Constraint("Symmetric", 66, 2, 68, 2, -1, 1),
    Sketcher.Constraint("Symmetric", 64, 2, 70, 2, -1, 1),
    Sketcher.Constraint("Symmetric", 62, 2, 72, 2, -1, 1),
    Sketcher.Constraint("Symmetric", 60, 2, 74, 2, -1, 1),
    Sketcher.Constraint("Symmetric", 58, 2, 76, 2, -1, 1),
    Sketcher.Constraint("Symmetric", 56, 2, 78, 2, -1, 1),
    Sketcher.Constraint("Symmetric", 50, 2, 80, 2, -1, 1),
    Sketcher.Constraint("Symmetric", 48, 2, 82, 2, -1, 1),
    Sketcher.Constraint("Symmetric", 54, 2, 84, 2, -1, 1),
    Sketcher.Constraint("Symmetric", 52, 2, 86, 2, -1, 1),
    Sketcher.Constraint("Symmetric", 21, 2, 24, 2, -2),
    Sketcher.Constraint("Symmetric", 23, 2, 26, 2, -2),
    Sketcher.Constraint("Symmetric", 17, 2, 28, 2, -2),
    Sketcher.Constraint("Symmetric", 19, 2, 30, 2, -2),
    Sketcher.Constraint("Symmetric", 13, 2, 32, 2, -2),
    Sketcher.Constraint("Symmetric", 15, 2, 34, 2, -2),
    Sketcher.Constraint("Symmetric", 9, 2, 36, 2, -2),
    Sketcher.Constraint("Symmetric", 11, 2, 38, 2, -2),
    Sketcher.Constraint("Symmetric", 5, 2, 40, 2, -2),
    Sketcher.Constraint("Symmetric", 7, 2, 42, 2, -2),
    Sketcher.Constraint("Symmetric", 1, 2, 44, 2, -2),
    Sketcher.Constraint("Symmetric", 3, 2, 46, 2, -2),
    Sketcher.Constraint("Horizontal", 1, 2, 4, 2),
    Sketcher.Constraint("Horizontal", 3, 2, 6, 2),
    Sketcher.Constraint("Horizontal", 5, 2, 8, 2),
    Sketcher.Constraint("Horizontal", 7, 2, 10, 2),
    Sketcher.Constraint("Horizontal", 9, 2, 12, 2),
    Sketcher.Constraint("Horizontal", 11, 2, 14, 2),
    Sketcher.Constraint("Horizontal", 13, 2, 16, 2),
    Sketcher.Constraint("Horizontal", 15, 2, 18, 2),
    Sketcher.Constraint("Horizontal", 17, 2, 20, 2),
    Sketcher.Constraint("Horizontal", 19, 2, 22, 2),
    Sketcher.Constraint("Horizontal", 49, 2, 52, 2),
    Sketcher.Constraint("Horizontal", 51, 2, 54, 2),
    Sketcher.Constraint("Horizontal", 45, 2, 56, 2),
    Sketcher.Constraint("Horizontal", 57, 2, 60, 2),
    Sketcher.Constraint("Horizontal", 59, 2, 62, 2),
    Sketcher.Constraint("Horizontal", 61, 2, 64, 2),
    Sketcher.Constraint("Horizontal", 63, 2, 66, 2),
    Sketcher.Constraint("Horizontal", 65, 2, 68, 2),
    Sketcher.Constraint("Horizontal", 53, 2, 80, 2),
    Sketcher.Constraint("Equal", 3, 5),
    Sketcher.Constraint("Equal", 7, 9),
    Sketcher.Constraint("Equal", 11, 13),
    Sketcher.Constraint("Equal", 15, 17),
    Sketcher.Constraint("Equal", 19, 21),
    Sketcher.Constraint("Equal", 47, 49),
    Sketcher.Constraint("Equal", 51, 53),
    Sketcher.Constraint("Equal", 55, 57),
    Sketcher.Constraint("Equal", 59, 61),
    Sketcher.Constraint("Equal", 63, 65),
    Sketcher.Constraint("DistanceX", 1, 1, 1, 2, Q("2 mm")),
    Sketcher.Constraint("DistanceY", 0, 2, 0, 1, Q("16 mm")),
    Sketcher.Constraint("DistanceY", 48, 2, 48, 1, Q("21 mm")),
    Sketcher.Constraint("DistanceY", 56, 2, 56, 1, Q("40 mm")),
    Sketcher.Constraint("DistanceX", 0, 2, -1, 1, Q("29.2 mm")),
    Sketcher.Constraint("DistanceX", 48, 2, -1, 1, Q("48.9 mm")),
    Sketcher.Constraint("DistanceX", 52, 2, -1, 1, Q("53.9 mm")),
    Sketcher.Constraint("DistanceX", 56, 2, -1, 1, Q("43.9 mm")),
    Sketcher.Constraint("DistanceX", 60, 2, -1, 1, Q("38.9 mm")),
    Sketcher.Constraint("DistanceX", 64, 2, -1, 1, Q("33.9 mm")),
    Sketcher.Constraint("DistanceX", 12, 2, -1, 1, Q("13.818182 mm")),
    Sketcher.Constraint("DistanceX", 16, 2, -1, 1, Q("8.690909 mm")),
    Sketcher.Constraint("DistanceX", 4, 2, -1, 1, Q("24.072727 mm")),
    Sketcher.Constraint("DistanceX", 8, 2, -1, 1, Q("18.945455 mm")),
    Sketcher.Constraint("DistanceX", 20, 2, -1, 1, Q("3.563636 mm")),
])
pad2 = doc.addObject("PartDesign::Pad", "Pad001")
body.addObject(pad2)
pad2.Profile = sketch2
pad2.Length = 13

# Sketch on XY plane
sketch3 = doc.addObject("Sketcher::SketchObject", "Sketch002")
body.addObject(sketch3)
sketch3.AttachmentSupport = (doc.XY_Plane, [""])
sketch3.MapMode = "FlatFace"
sketch3.AttachmentOffset = App.Placement(Vector(0, 0, 31), App.Rotation())
sketch3.addGeometry([
    Part.LineSegment(Vector(-41.9, -8.2, 0), Vector(-41.9, -15.7, 0)),
    Part.LineSegment(Vector(-41.9, -15.7, 0), Vector(-38.9, -15.7, 0)),
    Part.LineSegment(Vector(-38.9, -15.7, 0), Vector(-38.9, -8.2, 0)),
    Part.LineSegment(Vector(-38.9, -8.2, 0), Vector(-41.9, -8.2, 0)),
], False)
sketch3.addConstraint([
    Sketcher.Constraint("Coincident", 0, 2, 1, 1),
    Sketcher.Constraint("Coincident", 1, 2, 2, 1),
    Sketcher.Constraint("Coincident", 2, 2, 3, 1),
    Sketcher.Constraint("Coincident", 3, 2, 0, 1),
    Sketcher.Constraint("Vertical", 0),
    Sketcher.Constraint("Horizontal", 1),
    Sketcher.Constraint("Vertical", 2),
    Sketcher.Constraint("Horizontal", 3),
    Sketcher.Constraint("DistanceX", 1, 1, 1, 2, Q("3 mm")),
    Sketcher.Constraint("DistanceY", 0, 2, 0, 1, Q("7.5 mm")),
    Sketcher.Constraint("DistanceX", 0, 2, -1, 1, Q("41.9 mm")),
    Sketcher.Constraint("DistanceY", 0, 2, -1, 1, Q("15.7 mm")),
])
pad3 = doc.addObject("PartDesign::Pad", "Pad002")
body.addObject(pad3)
pad3.Profile = sketch3
pad3.Type = "UpToFirst"
pad3.Reversed = True

# Sketch on XY plane
sketch4 = doc.addObject("Sketcher::SketchObject", "Sketch003")
body.addObject(sketch4)
sketch4.AttachmentSupport = (doc.XY_Plane, [""])
sketch4.MapMode = "FlatFace"
sketch4.AttachmentOffset = App.Placement(Vector(0, 0, 31), App.Rotation())
sketch4.addGeometry([
    Part.LineSegment(Vector(-36.9, -8.2, 0), Vector(-36.9, -15.7, 0)),
    Part.LineSegment(Vector(-36.9, -15.7, 0), Vector(-33.9, -15.7, 0)),
    Part.LineSegment(Vector(-33.9, -15.7, 0), Vector(-33.9, -8.2, 0)),
    Part.LineSegment(Vector(-33.9, -8.2, 0), Vector(-36.9, -8.2, 0)),
], False)
sketch4.addConstraint([
    Sketcher.Constraint("Coincident", 0, 2, 1, 1),
    Sketcher.Constraint("Coincident", 1, 2, 2, 1),
    Sketcher.Constraint("Coincident", 2, 2, 3, 1),
    Sketcher.Constraint("Coincident", 3, 2, 0, 1),
    Sketcher.Constraint("Vertical", 0),
    Sketcher.Constraint("Horizontal", 1),
    Sketcher.Constraint("Vertical", 2),
    Sketcher.Constraint("Horizontal", 3),
    Sketcher.Constraint("DistanceX", 1, 1, 1, 2, Q("3 mm")),
    Sketcher.Constraint("DistanceY", 0, 2, 0, 1, Q("7.5 mm")),
    Sketcher.Constraint("DistanceX", 0, 2, -1, 1, Q("36.9 mm")),
    Sketcher.Constraint("DistanceY", 0, 2, -1, 1, Q("15.7 mm")),
])
pad4 = doc.addObject("PartDesign::Pad", "Pad003")
body.addObject(pad4)
pad4.Profile = sketch4
pad4.Type = "UpToFirst"
pad4.Reversed = True

# Sketch on XY plane
sketch5 = doc.addObject("Sketcher::SketchObject", "Sketch004")
body.addObject(sketch5)
sketch5.AttachmentSupport = (doc.XY_Plane, [""])
sketch5.MapMode = "FlatFace"
sketch5.AttachmentOffset = App.Placement(Vector(0, 0, 31), App.Rotation())
sketch5.addGeometry([
    Part.LineSegment(Vector(33.9, -8.2, 0), Vector(33.9, -15.7, 0)),
    Part.LineSegment(Vector(33.9, -15.7, 0), Vector(36.9, -15.7, 0)),
    Part.LineSegment(Vector(36.9, -15.7, 0), Vector(36.9, -8.2, 0)),
    Part.LineSegment(Vector(36.9, -8.2, 0), Vector(33.9, -8.2, 0)),
], False)
sketch5.addConstraint([
    Sketcher.Constraint("Coincident", 0, 2, 1, 1),
    Sketcher.Constraint("Coincident", 1, 2, 2, 1),
    Sketcher.Constraint("Coincident", 2, 2, 3, 1),
    Sketcher.Constraint("Coincident", 3, 2, 0, 1),
    Sketcher.Constraint("Vertical", 0),
    Sketcher.Constraint("Horizontal", 1),
    Sketcher.Constraint("Vertical", 2),
    Sketcher.Constraint("Horizontal", 3),
    Sketcher.Constraint("DistanceX", 1, 1, 1, 2, Q("3 mm")),
    Sketcher.Constraint("DistanceY", 0, 2, 0, 1, Q("7.5 mm")),
    Sketcher.Constraint("DistanceX", -1, 1, 0, 2, Q("33.9 mm")),
    Sketcher.Constraint("DistanceY", 0, 2, -1, 1, Q("15.7 mm")),
])
pad5 = doc.addObject("PartDesign::Pad", "Pad004")
body.addObject(pad5)
pad5.Profile = sketch5
pad5.Type = "UpToFirst"
pad5.Reversed = True

# Sketch on XY plane
sketch6 = doc.addObject("Sketcher::SketchObject", "Sketch005")
body.addObject(sketch6)
sketch6.AttachmentSupport = (doc.XY_Plane, [""])
sketch6.MapMode = "FlatFace"
sketch6.AttachmentOffset = App.Placement(Vector(0, 0, 31), App.Rotation())
sketch6.addGeometry([
    Part.LineSegment(Vector(38.9, -8.2, 0), Vector(38.9, -15.7, 0)),
    Part.LineSegment(Vector(38.9, -15.7, 0), Vector(41.9, -15.7, 0)),
    Part.LineSegment(Vector(41.9, -15.7, 0), Vector(41.9, -8.2, 0)),
    Part.LineSegment(Vector(41.9, -8.2, 0), Vector(38.9, -8.2, 0)),
], False)
sketch6.addConstraint([
    Sketcher.Constraint("Coincident", 0, 2, 1, 1),
    Sketcher.Constraint("Coincident", 1, 2, 2, 1),
    Sketcher.Constraint("Coincident", 2, 2, 3, 1),
    Sketcher.Constraint("Coincident", 3, 2, 0, 1),
    Sketcher.Constraint("Vertical", 0),
    Sketcher.Constraint("Horizontal", 1),
    Sketcher.Constraint("Vertical", 2),
    Sketcher.Constraint("Horizontal", 3),
    Sketcher.Constraint("DistanceX", 1, 1, 1, 2, Q("3 mm")),
    Sketcher.Constraint("DistanceY", 0, 2, 0, 1, Q("7.5 mm")),
    Sketcher.Constraint("DistanceX", -1, 1, 0, 2, Q("38.9 mm")),
    Sketcher.Constraint("DistanceY", 0, 2, -1, 1, Q("15.7 mm")),
])
pad6 = doc.addObject("PartDesign::Pad", "Pad005")
body.addObject(pad6)
pad6.Profile = sketch6
pad6.Type = "UpToFirst"
pad6.Reversed = True

# Sketch on XY plane
sketch7 = doc.addObject("Sketcher::SketchObject", "Sketch006")
body.addObject(sketch7)
sketch7.AttachmentSupport = (doc.XY_Plane, [""])
sketch7.MapMode = "FlatFace"
sketch7.AttachmentOffset = App.Placement(Vector(0, 0, 31), App.Rotation())
sketch7.addGeometry([
    Part.Circle(Vector(-37.9, -11.95, 0), Vector(0, 0, 1), 1.65),
    Part.Circle(Vector(37.9, -11.95, 0), Vector(0, 0, 1), 1.65),
], False)
sketch7.addConstraint([
    Sketcher.Constraint("Equal", 0, 1),
    Sketcher.Constraint("Symmetric", 0, 3, 1, 3, -2),
    Sketcher.Constraint("Diameter", 0, Q("3.3 mm")),
    Sketcher.Constraint("DistanceX", 0, 3, -1, 1, Q("37.9 mm")),
    Sketcher.Constraint("DistanceY", 0, 3, -1, 1, Q("11.95 mm")),
])
pocket1 = doc.addObject("PartDesign::Pocket", "Pocket")
body.addObject(pocket1)
pocket1.Profile = sketch7
pocket1.Length = 6
doc.recompute()

fillet = doc.addObject("PartDesign::Fillet", "Fillet")
body.addObject(fillet)
fillet.Base = (pocket1, edges_at(pocket1, [
    (-55.5, 20, 9),
    (55.5, 20, 9),
    (55.5, -20, 9),
    (-55.5, -20, 9),
]))
fillet.Radius = 5

doc.recompute()
